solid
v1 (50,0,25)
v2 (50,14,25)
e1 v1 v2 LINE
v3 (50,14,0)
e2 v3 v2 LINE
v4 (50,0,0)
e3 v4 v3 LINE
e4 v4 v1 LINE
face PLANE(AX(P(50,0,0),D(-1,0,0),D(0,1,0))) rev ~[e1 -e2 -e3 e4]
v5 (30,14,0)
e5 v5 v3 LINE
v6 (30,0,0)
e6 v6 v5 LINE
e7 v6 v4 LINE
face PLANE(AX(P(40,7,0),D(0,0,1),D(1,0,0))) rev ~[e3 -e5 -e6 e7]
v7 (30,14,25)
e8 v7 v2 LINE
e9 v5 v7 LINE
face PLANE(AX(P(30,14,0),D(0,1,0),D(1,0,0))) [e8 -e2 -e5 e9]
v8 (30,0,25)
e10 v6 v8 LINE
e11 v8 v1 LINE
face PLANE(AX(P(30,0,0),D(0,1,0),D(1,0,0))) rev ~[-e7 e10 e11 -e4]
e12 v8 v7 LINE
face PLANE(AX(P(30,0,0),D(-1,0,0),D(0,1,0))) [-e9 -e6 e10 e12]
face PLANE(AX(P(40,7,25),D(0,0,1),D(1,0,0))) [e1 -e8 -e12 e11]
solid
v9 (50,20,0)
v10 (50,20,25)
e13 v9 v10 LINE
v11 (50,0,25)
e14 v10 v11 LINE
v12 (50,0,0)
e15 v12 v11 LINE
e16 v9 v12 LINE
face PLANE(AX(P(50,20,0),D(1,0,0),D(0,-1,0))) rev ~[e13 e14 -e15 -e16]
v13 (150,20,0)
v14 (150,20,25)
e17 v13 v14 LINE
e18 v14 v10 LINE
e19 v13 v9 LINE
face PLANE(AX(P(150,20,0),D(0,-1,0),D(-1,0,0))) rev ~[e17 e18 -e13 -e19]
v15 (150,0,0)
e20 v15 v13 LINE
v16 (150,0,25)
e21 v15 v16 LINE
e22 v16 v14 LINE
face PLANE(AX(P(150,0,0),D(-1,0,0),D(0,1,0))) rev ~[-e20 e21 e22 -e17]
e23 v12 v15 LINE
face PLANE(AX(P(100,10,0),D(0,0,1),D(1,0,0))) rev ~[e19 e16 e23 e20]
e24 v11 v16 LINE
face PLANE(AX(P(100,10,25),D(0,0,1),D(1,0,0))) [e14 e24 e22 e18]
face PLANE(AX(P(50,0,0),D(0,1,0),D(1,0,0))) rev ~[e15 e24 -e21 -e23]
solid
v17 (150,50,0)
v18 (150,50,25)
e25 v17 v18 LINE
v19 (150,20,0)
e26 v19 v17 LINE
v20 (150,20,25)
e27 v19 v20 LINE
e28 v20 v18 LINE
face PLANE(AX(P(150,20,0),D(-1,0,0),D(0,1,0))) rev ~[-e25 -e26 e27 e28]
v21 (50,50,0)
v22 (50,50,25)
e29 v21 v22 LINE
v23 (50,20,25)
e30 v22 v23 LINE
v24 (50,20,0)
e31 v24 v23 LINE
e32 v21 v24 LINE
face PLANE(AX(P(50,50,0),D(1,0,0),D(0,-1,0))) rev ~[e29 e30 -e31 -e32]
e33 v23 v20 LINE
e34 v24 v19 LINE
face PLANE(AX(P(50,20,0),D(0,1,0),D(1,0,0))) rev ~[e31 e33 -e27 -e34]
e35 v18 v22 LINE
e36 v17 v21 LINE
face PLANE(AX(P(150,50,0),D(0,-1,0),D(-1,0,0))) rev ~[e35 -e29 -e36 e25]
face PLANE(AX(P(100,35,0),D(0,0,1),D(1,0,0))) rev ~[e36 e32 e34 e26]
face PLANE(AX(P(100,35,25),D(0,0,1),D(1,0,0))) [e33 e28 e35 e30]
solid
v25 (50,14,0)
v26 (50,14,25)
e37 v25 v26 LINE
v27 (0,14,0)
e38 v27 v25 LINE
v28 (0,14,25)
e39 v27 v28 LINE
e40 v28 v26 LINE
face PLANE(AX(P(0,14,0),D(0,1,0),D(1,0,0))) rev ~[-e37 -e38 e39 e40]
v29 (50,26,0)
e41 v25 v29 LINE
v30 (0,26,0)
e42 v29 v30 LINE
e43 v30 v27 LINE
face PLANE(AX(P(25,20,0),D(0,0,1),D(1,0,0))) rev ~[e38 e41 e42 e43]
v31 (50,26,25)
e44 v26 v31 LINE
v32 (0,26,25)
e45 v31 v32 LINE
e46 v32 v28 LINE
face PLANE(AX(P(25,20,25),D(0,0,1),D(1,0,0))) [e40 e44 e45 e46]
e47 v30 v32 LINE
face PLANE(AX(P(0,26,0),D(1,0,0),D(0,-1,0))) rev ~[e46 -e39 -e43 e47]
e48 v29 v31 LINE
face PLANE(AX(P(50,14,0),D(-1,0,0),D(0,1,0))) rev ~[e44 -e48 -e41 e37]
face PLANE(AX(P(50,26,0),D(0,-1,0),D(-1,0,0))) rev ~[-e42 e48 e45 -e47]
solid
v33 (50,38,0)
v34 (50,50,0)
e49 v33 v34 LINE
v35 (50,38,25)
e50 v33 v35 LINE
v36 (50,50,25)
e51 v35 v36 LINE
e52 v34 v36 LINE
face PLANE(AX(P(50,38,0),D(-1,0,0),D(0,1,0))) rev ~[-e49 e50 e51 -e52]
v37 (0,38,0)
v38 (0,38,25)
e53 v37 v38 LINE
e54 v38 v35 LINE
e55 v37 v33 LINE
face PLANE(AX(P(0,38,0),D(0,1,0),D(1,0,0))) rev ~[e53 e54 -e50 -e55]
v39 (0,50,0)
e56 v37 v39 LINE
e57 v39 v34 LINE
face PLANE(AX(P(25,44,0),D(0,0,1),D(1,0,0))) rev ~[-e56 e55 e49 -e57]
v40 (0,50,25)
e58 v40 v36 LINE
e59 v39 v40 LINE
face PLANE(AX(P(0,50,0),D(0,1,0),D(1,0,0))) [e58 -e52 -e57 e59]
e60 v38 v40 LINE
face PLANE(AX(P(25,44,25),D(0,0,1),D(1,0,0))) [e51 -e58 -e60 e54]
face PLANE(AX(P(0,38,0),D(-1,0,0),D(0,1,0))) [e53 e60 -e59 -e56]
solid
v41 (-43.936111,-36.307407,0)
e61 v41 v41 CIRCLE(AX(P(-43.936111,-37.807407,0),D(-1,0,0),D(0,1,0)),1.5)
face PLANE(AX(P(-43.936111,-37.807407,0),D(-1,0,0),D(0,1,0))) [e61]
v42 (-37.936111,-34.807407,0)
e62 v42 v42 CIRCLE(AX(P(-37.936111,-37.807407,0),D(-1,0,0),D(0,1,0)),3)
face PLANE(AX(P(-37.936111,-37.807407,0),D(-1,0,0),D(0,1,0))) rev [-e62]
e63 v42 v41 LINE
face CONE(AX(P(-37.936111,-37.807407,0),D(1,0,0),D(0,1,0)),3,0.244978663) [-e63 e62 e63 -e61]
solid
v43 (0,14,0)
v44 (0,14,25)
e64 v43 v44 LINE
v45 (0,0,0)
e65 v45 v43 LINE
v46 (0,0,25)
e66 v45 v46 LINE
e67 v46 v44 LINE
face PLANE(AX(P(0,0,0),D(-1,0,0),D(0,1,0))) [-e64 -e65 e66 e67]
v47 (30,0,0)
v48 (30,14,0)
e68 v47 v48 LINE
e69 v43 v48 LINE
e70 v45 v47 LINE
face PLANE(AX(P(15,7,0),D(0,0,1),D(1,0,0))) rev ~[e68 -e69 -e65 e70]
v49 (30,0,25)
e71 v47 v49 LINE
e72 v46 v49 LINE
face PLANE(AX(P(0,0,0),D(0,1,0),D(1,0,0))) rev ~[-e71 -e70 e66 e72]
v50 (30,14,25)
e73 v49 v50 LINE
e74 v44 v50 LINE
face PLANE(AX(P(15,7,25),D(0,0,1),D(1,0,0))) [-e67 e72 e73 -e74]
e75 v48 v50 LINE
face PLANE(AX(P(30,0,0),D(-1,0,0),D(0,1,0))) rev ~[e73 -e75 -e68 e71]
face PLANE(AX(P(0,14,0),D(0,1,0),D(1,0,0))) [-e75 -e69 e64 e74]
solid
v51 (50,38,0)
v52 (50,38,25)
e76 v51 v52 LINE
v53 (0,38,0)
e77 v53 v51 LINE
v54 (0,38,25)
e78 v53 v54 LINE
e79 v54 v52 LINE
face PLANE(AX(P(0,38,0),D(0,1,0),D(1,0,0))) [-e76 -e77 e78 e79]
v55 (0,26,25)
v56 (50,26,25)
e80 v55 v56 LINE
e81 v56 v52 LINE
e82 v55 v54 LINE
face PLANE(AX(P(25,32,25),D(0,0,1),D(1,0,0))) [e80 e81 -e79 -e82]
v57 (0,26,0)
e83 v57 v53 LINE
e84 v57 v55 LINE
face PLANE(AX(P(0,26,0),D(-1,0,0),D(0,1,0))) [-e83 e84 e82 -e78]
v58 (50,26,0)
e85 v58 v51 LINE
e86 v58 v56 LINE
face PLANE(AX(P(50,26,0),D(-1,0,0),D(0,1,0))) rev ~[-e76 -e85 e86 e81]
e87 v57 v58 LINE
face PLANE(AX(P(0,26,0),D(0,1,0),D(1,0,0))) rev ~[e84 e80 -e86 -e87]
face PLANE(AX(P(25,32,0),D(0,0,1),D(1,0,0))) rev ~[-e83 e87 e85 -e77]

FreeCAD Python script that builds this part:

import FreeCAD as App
import Part
import Sketcher
from FreeCAD import Vector
Q = App.Units.Quantity

doc = App.newDocument("Part")
body = doc.addObject("PartDesign::Body", "Body")
body.AllowCompound = True

sketch1 = doc.addObject("Sketcher::SketchObject", "Sketch")
body.addObject(sketch1)
sketch1.AttachmentSupport = (doc.XY_Plane, [""])
sketch1.MapMode = "FlatFace"
sketch1.addGeometry([
    Part.LineSegment(Vector(0, 50, 0), Vector(0, 38, 0)),
    Part.LineSegment(Vector(0, 38, 0), Vector(50, 38, 0)),
    Part.LineSegment(Vector(50, 38, 0), Vector(50, 50, 0)),
    Part.LineSegment(Vector(50, 50, 0), Vector(0, 50, 0)),
    Part.LineSegment(Vector(0, 26, 0), Vector(0, 14, 0)),
    Part.LineSegment(Vector(0, 14, 0), Vector(50, 14, 0)),
    Part.LineSegment(Vector(50, 14, 0), Vector(50, 26, 0)),
    Part.LineSegment(Vector(50, 26, 0), Vector(0, 26, 0)),
], False)
sketch1.addConstraint([
    Sketcher.Constraint("Coincident", 0, 2, 1, 1),
    Sketcher.Constraint("Coincident", 1, 2, 2, 1),
    Sketcher.Constraint("Coincident", 2, 2, 3, 1),
    Sketcher.Constraint("Coincident", 3, 2, 0, 1),
    Sketcher.Constraint("Coincident", 4, 2, 5, 1),
    Sketcher.Constraint("Coincident", 5, 2, 6, 1),
    Sketcher.Constraint("Coincident", 6, 2, 7, 1),
    Sketcher.Constraint("Coincident", 7, 2, 4, 1),
    Sketcher.Constraint("Vertical", 0),
    Sketcher.Constraint("Horizontal", 1),
    Sketcher.Constraint("Vertical", 2),
    Sketcher.Constraint("Horizontal", 3),
    Sketcher.Constraint("Vertical", 4),
    Sketcher.Constraint("Horizontal", 5),
    Sketcher.Constraint("Vertical", 6),
    Sketcher.Constraint("Horizontal", 7),
    Sketcher.Constraint("PointOnObject", 0, 2, -2),
    Sketcher.Constraint("PointOnObject", 4, 2, -2),
    Sketcher.Constraint("Vertical", 2, 2, 5, 2),
    Sketcher.Constraint("Equal", 2, 4),
    Sketcher.Constraint("DistanceX", 1, 1, 1, 2, Q("50 mm")),
    Sketcher.Constraint("DistanceY", 0, 2, 0, 1, Q("12 mm")),
    Sketcher.Constraint("DistanceY", -1, 1, 0, 2, Q("38 mm")),
    Sketcher.Constraint("DistanceY", -1, 1, 4, 2, Q("14 mm")),
])
pad1 = doc.addObject("PartDesign::Pad", "Pad")
body.addObject(pad1)
pad1.Profile = sketch1
pad1.Length = 25
body2 = doc.addObject("PartDesign::Body", "Body001")
body2.AllowCompound = True

sketch2 = doc.addObject("Sketcher::SketchObject", "Sketch001")
body2.addObject(sketch2)
sketch2.AttachmentSupport = (doc.getObject("XY_Plane001"), [""])
sketch2.MapMode = "FlatFace"
sketch2.addGeometry([
    Part.LineSegment(Vector(0, 38, 0), Vector(0, 26, 0)),
    Part.LineSegment(Vector(0, 26, 0), Vector(50, 26, 0)),
    Part.LineSegment(Vector(50, 26, 0), Vector(50, 38, 0)),
    Part.LineSegment(Vector(50, 38, 0), Vector(0, 38, 0)),
    Part.LineSegment(Vector(0, 14, 0), Vector(0, 0, 0)),
    Part.LineSegment(Vector(0, 0, 0), Vector(30, 0, 0)),
    Part.LineSegment(Vector(30, 0, 0), Vector(30, 14, 0)),
    Part.LineSegment(Vector(30, 14, 0), Vector(0, 14, 0)),
    Part.LineSegment(Vector(50, 0, 0), Vector(150, 0, 0)),
    Part.LineSegment(Vector(150, 0, 0), Vector(150, 20, 0)),
    Part.LineSegment(Vector(150, 20, 0), Vector(50, 20, 0)),
    Part.LineSegment(Vector(50, 20, 0), Vector(50, 0, 0)),
], False)
sketch2.addConstraint([
    Sketcher.Constraint("Coincident", 0, 2, 1, 1),
    Sketcher.Constraint("Coincident", 1, 2, 2, 1),
    Sketcher.Constraint("Coincident", 2, 2, 3, 1),
    Sketcher.Constraint("Coincident", 3, 2, 0, 1),
    Sketcher.Constraint("Coincident", 4, 2, 5, 1),
    Sketcher.Constraint("Coincident", 5, 2, 6, 1),
    Sketcher.Constraint("Coincident", 6, 2, 7, 1),
    Sketcher.Constraint("Coincident", 7, 2, 4, 1),
    Sketcher.Constraint("Coincident", 8, 2, 9, 1),
    Sketcher.Constraint("Coincident", 9, 2, 10, 1),
    Sketcher.Constraint("Coincident", 10, 2, 11, 1),
    Sketcher.Constraint("Coincident", 11, 2, 8, 1),
    Sketcher.Constraint("Vertical", 0),
    Sketcher.Constraint("Horizontal", 1),
    Sketcher.Constraint("Vertical", 2),
    Sketcher.Constraint("Horizontal", 3),
    Sketcher.Constraint("Vertical", 4),
    Sketcher.Constraint("Horizontal", 5),
    Sketcher.Constraint("Vertical", 6),
    Sketcher.Constraint("Horizontal", 7),
    Sketcher.Constraint("Horizontal", 8),
    Sketcher.Constraint("Vertical", 9),
    Sketcher.Constraint("Horizontal", 10),
    Sketcher.Constraint("Vertical", 11),
    Sketcher.Constraint("Coincident", 4, 2, -1, 1),
    Sketcher.Constraint("PointOnObject", 0, 2, -2),
    Sketcher.Constraint("PointOnObject", 8, 2, -1),
    Sketcher.Constraint("Vertical", 2, 2, 10, 2),
    Sketcher.Constraint("DistanceX", 1, 1, 1, 2, Q("50 mm")),
    Sketcher.Constraint("DistanceX", 5, 1, 5, 2, Q("30 mm")),
    Sketcher.Constraint("DistanceX", 8, 1, 8, 2, Q("100 mm")),
    Sketcher.Constraint("DistanceY", 0, 2, 0, 1, Q("12 mm")),
    Sketcher.Constraint("DistanceY", 4, 2, 4, 1, Q("14 mm")),
    Sketcher.Constraint("DistanceY", 9, 1, 9, 2, Q("20 mm")),
    Sketcher.Constraint("DistanceY", -1, 1, 0, 2, Q("26 mm")),
])
pad2 = doc.addObject("PartDesign::Pad", "Pad001")
body2.addObject(pad2)
pad2.Profile = sketch2
pad2.Length = 25
body3 = doc.addObject("PartDesign::Body", "Body002")
body3.AllowCompound = True

sketch3 = doc.addObject("Sketcher::SketchObject", "Sketch002")
body3.addObject(sketch3)
sketch3.AttachmentSupport = (doc.getObject("XY_Plane002"), [""])
sketch3.MapMode = "FlatFace"
sketch3.addGeometry([
    Part.LineSegment(Vector(50, 20, 0), Vector(150, 20, 0)),
    Part.LineSegment(Vector(150, 20, 0), Vector(150, 50, 0)),
    Part.LineSegment(Vector(150, 50, 0), Vector(50, 50, 0)),
    Part.LineSegment(Vector(50, 50, 0), Vector(50, 20, 0)),
    Part.LineSegment(Vector(30, 14, 0), Vector(30, 0, 0)),
    Part.LineSegment(Vector(30, 0, 0), Vector(50, 0, 0)),
    Part.LineSegment(Vector(50, 0, 0), Vector(50, 14, 0)),
    Part.LineSegment(Vector(50, 14, 0), Vector(30, 14, 0)),
], False)
sketch3.addConstraint([
    Sketcher.Constraint("Coincident", 0, 2, 1, 1),
    Sketcher.Constraint("Coincident", 1, 2, 2, 1),
    Sketcher.Constraint("Coincident", 2, 2, 3, 1),
    Sketcher.Constraint("Coincident", 3, 2, 0, 1),
    Sketcher.Constraint("Coincident", 4, 2, 5, 1),
    Sketcher.Constraint("Coincident", 5, 2, 6, 1),
    Sketcher.Constraint("Coincident", 6, 2, 7, 1),
    Sketcher.Constraint("Coincident", 7, 2, 4, 1),
    Sketcher.Constraint("Horizontal", 0),
    Sketcher.Constraint("Vertical", 1),
    Sketcher.Constraint("Horizontal", 2),
    Sketcher.Constraint("Vertical", 3),
    Sketcher.Constraint("Vertical", 4),
    Sketcher.Constraint("Horizontal", 5),
    Sketcher.Constraint("Vertical", 6),
    Sketcher.Constraint("Horizontal", 7),
    Sketcher.Constraint("PointOnObject", 4, 2, -1),
    Sketcher.Constraint("Vertical", 3, 2, 5, 2),
    Sketcher.Constraint("DistanceX", 0, 1, 0, 2, Q("100 mm")),
    Sketcher.Constraint("DistanceX", 5, 1, 5, 2, Q("20 mm")),
    Sketcher.Constraint("DistanceY", 1, 1, 1, 2, Q("30 mm")),
    Sketcher.Constraint("DistanceY", 4, 2, 4, 1, Q("14 mm")),
    Sketcher.Constraint("DistanceX", -1, 1, 0, 2, Q("150 mm")),
    Sketcher.Constraint("DistanceY", -1, 1, 0, 2, Q("20 mm")),
])
pad3 = doc.addObject("PartDesign::Pad", "Pad002")
body3.addObject(pad3)
pad3.Profile = sketch3
pad3.Length = 25
body4 = doc.addObject("PartDesign::Body", "Body003")

sketch4 = doc.addObject("Sketcher::SketchObject", "Sketch003")
body4.addObject(sketch4)
sketch4.AttachmentSupport = (doc.getObject("XY_Plane003"), [""])
sketch4.MapMode = "FlatFace"
sketch4.addGeometry([
    Part.LineSegment(Vector(-37.9, -37.8, 0), Vector(-37.9, -34.8, 0)),
    Part.LineSegment(Vector(-37.9, -34.8, 0), Vector(-43.9, -36.3, 0)),
    Part.LineSegment(Vector(-43.9, -36.3, 0), Vector(-43.9, -37.8, 0)),
    Part.LineSegment(Vector(-43.9, -37.8, 0), Vector(-37.9, -37.8, 0)),
], False)
sketch4.addGeometry(Part.LineSegment(Vector(-37.9, -37.8, 0), Vector(-43.9, -37.8, 0)), True)
sketch4.addConstraint([
    Sketcher.Constraint("Coincident", 0, 2, 1, 1),
    Sketcher.Constraint("Coincident", 1, 2, 2, 1),
    Sketcher.Constraint("Coincident", 2, 2, 3, 1),
    Sketcher.Constraint("Coincident", 3, 2, 0, 1),
    Sketcher.Constraint("Vertical", 0),
    Sketcher.Constraint("Vertical", 2),
    Sketcher.Constraint("Horizontal", 3),
    Sketcher.Constraint("Horizontal", 4),
    Sketcher.Constraint("Coincident", 4, 1, 3, 2),
    Sketcher.Constraint("Vertical", 1, 2, 4, 2),
    Sketcher.Constraint("DistanceX", 3, 1, 3, 2, Q("6 mm")),
    Sketcher.Constraint("DistanceY", 0, 1, 0, 2, Q("3 mm")),
    Sketcher.Constraint("DistanceY", 2, 2, 2, 1, Q("1.5 mm")),
    Sketcher.Constraint("DistanceX", 0, 2, -1, 1, Q("37.936111 mm")),
    Sketcher.Constraint("DistanceY", 0, 2, -1, 1, Q("34.807407 mm")),
])
revolution = doc.addObject("PartDesign::Revolution", "Revolution")
body4.addObject(revolution)
revolution.Profile = sketch4
revolution.ReferenceAxis = (sketch4, ["Axis0"])
revolution.Angle = 360

doc.recompute()
